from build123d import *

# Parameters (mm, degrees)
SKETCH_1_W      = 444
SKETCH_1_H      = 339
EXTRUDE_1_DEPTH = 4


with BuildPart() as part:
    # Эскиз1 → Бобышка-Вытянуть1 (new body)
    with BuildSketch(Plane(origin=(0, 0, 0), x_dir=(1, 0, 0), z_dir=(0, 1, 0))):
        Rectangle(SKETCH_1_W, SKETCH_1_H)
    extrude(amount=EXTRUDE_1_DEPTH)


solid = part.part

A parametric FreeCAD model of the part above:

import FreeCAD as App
import Part
import Sketcher
Q = App.Units.Quantity

doc = App.newDocument("Part")
body = doc.addObject("PartDesign::Body", "Body")

sketch1 = body.newObject("Sketcher::SketchObject", "Sketch")
sketch1.AttachmentSupport = (doc.getObject("XZ_Plane"), [""])
sketch1.MapMode = "FlatFace"
sketch1.addGeometry([
    Part.LineSegment(App.Vector(-222, -170, 0), App.Vector(-222, 170, 0)),
    Part.LineSegment(App.Vector(-222, 170, 0), App.Vector(222, 170, 0)),
    Part.LineSegment(App.Vector(222, 170, 0), App.Vector(222, -170, 0)),
    Part.LineSegment(App.Vector(222, -170, 0), App.Vector(-222, -170, 0)),
], False)
sketch1.addConstraint([
    Sketcher.Constraint("Coincident", 0, 2, 1, 1),
    Sketcher.Constraint("Coincident", 1, 2, 2, 1),
    Sketcher.Constraint("Coincident", 2, 2, 3, 1),
    Sketcher.Constraint("Coincident", 3, 2, 0, 1),
    Sketcher.Constraint("Vertical", 0),
    Sketcher.Constraint("Horizontal", 1),
    Sketcher.Constraint("Vertical", 2),
    Sketcher.Constraint("Horizontal", 3),
    Sketcher.Constraint("Symmetric", 0, 2, 2, 2, -1, 1),
    Sketcher.Constraint("DistanceX", 1, 1, 1, 2, Q("444 mm")),
    Sketcher.Constraint("DistanceY", 0, 1, 0, 2, Q("339 mm")),
])
pad1 = body.newObject("PartDesign::Pad", "Pad")
pad1.Profile = sketch1
pad1.Length = 4
pad1.Reversed = True

doc.recompute()
